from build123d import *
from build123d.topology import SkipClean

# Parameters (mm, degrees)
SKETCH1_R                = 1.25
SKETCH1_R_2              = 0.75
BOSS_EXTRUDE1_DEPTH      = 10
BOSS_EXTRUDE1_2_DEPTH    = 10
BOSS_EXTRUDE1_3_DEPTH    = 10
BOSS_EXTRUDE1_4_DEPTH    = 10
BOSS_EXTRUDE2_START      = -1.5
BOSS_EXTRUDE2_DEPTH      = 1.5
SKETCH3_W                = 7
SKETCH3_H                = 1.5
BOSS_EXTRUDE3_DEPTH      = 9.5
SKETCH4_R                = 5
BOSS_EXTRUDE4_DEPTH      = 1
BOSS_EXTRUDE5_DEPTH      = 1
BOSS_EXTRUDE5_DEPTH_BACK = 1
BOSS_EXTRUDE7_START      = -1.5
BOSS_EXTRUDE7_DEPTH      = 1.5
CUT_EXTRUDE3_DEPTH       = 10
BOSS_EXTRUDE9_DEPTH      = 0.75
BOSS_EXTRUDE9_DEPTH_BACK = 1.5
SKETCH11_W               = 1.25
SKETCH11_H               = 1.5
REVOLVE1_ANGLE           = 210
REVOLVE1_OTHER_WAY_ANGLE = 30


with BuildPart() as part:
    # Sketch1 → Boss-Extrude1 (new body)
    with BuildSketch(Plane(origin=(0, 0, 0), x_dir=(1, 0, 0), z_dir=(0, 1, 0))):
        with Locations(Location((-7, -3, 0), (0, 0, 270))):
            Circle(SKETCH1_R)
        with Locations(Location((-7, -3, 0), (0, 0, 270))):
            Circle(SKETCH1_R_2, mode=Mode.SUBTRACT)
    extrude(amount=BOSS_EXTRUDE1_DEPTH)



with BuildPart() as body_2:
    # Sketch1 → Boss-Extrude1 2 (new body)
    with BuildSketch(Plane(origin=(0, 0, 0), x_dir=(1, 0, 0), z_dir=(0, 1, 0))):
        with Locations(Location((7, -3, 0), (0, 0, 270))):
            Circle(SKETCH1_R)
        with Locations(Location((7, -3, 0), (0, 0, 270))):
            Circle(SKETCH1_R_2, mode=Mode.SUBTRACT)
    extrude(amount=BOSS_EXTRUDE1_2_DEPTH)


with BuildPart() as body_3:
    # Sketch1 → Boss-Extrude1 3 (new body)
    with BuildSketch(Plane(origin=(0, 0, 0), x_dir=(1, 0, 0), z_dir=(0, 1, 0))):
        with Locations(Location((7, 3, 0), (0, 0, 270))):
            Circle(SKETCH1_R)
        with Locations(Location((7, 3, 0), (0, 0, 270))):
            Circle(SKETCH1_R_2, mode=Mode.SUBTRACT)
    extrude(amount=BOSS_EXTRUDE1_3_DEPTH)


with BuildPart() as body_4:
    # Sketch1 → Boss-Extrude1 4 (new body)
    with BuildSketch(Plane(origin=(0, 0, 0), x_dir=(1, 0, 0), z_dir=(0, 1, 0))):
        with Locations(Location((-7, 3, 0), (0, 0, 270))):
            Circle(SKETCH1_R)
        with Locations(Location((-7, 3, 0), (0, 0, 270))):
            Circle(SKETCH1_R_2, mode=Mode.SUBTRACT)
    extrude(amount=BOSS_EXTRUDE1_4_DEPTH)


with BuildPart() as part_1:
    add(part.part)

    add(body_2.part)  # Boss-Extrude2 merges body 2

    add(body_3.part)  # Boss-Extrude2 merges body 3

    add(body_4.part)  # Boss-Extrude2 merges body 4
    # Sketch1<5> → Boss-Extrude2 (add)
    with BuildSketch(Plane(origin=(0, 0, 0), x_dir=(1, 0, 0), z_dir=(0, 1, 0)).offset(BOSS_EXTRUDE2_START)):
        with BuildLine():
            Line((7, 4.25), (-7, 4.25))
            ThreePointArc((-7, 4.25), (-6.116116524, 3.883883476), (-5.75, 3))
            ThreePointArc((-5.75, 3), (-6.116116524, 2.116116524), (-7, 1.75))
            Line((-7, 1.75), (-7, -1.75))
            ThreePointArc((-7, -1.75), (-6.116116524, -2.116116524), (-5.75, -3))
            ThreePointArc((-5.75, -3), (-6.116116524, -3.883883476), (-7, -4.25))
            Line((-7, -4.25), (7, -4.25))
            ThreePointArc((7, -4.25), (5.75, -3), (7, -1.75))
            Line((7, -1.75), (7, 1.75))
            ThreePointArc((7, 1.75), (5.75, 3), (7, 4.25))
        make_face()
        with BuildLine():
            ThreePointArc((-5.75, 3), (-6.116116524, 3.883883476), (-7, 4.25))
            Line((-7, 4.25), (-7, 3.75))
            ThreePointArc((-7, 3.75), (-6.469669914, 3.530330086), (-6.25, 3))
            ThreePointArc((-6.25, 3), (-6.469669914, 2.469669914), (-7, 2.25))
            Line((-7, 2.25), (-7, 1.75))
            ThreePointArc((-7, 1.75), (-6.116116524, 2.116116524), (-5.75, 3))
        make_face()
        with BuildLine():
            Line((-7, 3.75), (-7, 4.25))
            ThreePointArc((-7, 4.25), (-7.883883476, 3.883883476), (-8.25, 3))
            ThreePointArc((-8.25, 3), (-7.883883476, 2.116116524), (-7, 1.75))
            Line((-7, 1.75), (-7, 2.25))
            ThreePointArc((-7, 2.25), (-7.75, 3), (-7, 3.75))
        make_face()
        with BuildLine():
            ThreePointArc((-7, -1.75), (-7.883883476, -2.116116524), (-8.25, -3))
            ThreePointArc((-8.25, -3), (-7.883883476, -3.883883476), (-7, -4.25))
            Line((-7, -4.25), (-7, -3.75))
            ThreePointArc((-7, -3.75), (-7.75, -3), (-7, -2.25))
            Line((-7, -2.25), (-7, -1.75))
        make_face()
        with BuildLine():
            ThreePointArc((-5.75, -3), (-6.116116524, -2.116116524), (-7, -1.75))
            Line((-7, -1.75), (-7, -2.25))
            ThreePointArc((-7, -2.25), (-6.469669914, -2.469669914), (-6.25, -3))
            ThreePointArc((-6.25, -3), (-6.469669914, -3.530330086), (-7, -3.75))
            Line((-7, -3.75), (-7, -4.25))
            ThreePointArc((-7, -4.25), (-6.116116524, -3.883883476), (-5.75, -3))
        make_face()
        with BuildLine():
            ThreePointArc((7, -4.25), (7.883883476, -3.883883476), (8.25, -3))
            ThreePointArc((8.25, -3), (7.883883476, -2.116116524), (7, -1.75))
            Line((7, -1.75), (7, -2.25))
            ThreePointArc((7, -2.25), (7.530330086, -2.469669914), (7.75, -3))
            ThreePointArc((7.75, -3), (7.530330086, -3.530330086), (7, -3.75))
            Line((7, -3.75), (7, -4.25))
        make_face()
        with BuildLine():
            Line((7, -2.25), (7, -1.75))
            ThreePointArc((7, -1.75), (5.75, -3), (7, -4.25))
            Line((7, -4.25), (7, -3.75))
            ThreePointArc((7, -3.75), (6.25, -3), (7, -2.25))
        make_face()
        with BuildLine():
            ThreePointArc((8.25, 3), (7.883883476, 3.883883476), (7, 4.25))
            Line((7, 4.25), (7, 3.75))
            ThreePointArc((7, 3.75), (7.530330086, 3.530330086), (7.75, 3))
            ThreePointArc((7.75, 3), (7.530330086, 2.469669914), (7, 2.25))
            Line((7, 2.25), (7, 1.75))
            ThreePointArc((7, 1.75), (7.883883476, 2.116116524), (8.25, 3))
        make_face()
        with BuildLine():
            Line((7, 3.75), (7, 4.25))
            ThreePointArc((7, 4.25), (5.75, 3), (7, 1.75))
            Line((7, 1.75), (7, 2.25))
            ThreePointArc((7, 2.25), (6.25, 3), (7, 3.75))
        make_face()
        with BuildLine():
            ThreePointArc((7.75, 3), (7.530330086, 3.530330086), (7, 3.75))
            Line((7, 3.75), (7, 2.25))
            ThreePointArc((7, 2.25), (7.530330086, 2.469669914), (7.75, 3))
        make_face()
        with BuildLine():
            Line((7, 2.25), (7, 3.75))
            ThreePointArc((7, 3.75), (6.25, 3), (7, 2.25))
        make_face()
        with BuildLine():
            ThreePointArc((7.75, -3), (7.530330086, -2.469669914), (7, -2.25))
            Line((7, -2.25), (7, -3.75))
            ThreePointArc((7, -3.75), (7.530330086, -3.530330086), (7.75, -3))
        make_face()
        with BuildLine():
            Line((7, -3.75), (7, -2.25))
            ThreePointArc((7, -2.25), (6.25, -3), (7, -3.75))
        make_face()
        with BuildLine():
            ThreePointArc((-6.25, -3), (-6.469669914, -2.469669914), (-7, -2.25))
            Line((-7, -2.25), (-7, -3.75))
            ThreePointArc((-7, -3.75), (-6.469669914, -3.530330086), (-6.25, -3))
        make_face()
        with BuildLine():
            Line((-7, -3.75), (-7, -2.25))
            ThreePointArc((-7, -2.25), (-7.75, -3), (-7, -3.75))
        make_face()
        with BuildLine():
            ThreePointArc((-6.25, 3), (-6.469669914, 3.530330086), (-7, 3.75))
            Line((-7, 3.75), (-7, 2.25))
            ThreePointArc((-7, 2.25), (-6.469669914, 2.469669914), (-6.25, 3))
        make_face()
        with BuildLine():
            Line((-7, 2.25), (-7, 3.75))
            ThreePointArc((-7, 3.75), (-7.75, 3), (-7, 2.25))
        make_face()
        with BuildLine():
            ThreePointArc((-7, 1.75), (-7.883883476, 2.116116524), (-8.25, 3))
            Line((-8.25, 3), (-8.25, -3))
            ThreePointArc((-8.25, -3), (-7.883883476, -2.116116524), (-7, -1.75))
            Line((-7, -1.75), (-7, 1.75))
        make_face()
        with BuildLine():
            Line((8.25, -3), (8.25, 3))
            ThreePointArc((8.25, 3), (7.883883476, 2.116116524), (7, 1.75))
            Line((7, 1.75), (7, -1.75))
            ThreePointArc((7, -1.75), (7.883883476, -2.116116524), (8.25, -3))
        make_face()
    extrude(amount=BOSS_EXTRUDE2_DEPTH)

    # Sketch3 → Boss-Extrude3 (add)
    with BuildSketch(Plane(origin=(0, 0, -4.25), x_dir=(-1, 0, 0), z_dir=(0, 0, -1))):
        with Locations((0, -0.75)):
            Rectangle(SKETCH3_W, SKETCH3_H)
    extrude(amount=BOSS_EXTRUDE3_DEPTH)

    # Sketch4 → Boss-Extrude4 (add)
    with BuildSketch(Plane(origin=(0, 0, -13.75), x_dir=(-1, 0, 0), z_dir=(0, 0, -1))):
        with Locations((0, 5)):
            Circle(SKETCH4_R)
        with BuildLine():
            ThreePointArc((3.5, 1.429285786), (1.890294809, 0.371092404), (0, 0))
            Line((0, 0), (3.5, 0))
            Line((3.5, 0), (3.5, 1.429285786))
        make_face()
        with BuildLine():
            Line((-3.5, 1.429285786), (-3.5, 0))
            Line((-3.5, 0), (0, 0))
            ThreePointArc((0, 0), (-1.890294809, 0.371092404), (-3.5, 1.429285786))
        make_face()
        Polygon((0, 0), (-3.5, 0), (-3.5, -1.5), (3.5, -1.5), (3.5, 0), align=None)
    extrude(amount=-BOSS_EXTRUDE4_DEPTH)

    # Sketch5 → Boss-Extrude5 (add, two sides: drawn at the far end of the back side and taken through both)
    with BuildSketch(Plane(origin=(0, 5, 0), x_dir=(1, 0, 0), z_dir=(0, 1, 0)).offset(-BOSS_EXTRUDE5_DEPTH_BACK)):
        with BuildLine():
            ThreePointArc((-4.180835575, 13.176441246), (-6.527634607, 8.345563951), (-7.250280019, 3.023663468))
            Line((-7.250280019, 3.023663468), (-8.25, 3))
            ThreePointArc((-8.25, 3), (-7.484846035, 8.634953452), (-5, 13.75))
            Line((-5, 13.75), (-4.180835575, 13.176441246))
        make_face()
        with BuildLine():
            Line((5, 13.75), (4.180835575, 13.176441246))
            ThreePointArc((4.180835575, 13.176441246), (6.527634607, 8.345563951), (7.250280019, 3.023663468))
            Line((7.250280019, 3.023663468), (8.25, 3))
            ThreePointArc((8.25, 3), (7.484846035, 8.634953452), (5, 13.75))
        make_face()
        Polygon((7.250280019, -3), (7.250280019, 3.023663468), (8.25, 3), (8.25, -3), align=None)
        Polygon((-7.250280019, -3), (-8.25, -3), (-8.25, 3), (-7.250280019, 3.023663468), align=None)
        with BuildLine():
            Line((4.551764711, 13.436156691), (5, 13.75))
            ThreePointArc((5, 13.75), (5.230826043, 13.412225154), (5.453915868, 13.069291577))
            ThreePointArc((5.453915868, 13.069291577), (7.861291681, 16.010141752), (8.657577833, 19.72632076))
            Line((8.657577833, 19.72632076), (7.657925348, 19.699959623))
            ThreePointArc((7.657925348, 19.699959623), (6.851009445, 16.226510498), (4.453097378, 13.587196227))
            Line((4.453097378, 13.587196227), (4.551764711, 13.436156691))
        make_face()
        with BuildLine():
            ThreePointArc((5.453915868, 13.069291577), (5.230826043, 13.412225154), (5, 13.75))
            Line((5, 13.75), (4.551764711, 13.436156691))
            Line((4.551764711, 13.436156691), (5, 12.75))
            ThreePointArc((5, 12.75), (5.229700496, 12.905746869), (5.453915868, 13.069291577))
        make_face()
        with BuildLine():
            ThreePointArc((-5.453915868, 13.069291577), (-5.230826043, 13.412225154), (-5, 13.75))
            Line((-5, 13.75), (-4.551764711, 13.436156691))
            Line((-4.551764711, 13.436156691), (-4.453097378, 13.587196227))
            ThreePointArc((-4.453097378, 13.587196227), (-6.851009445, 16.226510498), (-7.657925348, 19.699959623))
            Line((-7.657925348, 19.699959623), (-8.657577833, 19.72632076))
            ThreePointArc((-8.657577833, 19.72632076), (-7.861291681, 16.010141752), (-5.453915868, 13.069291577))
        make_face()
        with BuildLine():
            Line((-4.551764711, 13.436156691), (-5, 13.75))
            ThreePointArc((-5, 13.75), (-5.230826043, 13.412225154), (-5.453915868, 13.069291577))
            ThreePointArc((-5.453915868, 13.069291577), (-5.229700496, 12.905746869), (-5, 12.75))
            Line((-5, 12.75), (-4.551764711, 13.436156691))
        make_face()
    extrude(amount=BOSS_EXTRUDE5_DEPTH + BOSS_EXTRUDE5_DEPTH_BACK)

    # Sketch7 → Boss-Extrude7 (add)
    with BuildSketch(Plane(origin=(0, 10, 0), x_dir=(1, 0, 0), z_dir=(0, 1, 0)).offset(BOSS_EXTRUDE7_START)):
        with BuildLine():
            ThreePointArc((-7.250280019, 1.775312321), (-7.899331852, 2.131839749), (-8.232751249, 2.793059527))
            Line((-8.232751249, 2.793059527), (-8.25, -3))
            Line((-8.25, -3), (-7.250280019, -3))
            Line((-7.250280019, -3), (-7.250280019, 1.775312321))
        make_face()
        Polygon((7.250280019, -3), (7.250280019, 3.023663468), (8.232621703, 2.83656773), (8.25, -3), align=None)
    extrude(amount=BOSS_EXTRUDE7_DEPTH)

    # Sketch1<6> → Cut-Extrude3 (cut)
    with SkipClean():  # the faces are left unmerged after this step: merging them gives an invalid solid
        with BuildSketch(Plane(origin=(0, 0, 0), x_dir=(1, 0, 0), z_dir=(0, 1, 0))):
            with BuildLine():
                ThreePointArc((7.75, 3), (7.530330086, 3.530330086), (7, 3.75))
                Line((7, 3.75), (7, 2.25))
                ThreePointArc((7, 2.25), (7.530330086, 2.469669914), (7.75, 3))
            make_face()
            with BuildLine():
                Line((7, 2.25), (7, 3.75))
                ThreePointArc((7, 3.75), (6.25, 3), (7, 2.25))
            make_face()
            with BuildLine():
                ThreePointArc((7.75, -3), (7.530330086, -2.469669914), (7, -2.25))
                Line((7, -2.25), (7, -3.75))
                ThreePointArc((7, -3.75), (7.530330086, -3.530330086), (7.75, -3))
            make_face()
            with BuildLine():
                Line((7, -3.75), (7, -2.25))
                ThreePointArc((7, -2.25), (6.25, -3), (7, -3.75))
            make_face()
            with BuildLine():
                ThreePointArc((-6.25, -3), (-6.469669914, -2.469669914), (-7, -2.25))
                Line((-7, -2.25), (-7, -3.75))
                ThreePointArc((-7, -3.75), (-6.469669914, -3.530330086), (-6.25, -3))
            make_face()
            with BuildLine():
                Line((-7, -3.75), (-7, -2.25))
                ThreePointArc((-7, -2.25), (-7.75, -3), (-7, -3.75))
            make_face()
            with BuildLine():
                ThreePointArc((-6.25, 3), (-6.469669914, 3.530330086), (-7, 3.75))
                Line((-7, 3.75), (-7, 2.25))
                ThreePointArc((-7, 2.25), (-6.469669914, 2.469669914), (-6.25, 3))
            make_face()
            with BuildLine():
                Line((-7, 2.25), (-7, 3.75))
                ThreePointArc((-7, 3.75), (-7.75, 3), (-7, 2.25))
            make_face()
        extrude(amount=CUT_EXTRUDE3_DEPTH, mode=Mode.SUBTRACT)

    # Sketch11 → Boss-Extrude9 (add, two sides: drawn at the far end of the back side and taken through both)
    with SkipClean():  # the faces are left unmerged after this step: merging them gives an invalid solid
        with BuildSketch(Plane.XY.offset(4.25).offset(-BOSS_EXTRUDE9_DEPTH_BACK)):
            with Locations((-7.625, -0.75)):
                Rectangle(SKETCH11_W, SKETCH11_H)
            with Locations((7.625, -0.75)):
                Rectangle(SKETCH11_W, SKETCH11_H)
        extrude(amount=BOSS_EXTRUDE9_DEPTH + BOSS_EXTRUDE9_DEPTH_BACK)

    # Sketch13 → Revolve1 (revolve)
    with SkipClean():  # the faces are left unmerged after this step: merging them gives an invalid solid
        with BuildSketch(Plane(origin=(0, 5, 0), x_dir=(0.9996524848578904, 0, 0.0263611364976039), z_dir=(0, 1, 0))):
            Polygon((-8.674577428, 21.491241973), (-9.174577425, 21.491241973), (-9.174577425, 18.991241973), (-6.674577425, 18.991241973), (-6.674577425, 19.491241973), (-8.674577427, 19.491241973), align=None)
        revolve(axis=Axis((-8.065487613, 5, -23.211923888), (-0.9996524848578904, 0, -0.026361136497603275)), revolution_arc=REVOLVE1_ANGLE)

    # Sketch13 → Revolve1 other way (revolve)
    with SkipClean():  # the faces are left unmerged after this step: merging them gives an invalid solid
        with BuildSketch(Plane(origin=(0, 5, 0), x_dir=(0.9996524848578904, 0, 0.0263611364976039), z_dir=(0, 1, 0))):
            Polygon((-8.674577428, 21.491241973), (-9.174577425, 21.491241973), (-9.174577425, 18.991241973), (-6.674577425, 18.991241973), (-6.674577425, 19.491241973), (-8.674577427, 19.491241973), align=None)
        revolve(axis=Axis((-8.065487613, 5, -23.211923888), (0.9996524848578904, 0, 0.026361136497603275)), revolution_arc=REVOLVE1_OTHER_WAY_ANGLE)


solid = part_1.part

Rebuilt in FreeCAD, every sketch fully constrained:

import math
import FreeCAD as App
import Part
import Sketcher

doc = App.newDocument("Part")
body = doc.addObject("PartDesign::Body", "Body")

sketch1 = body.newObject("Sketcher::SketchObject", "Sketch")
sketch1.AttachmentSupport = (doc.getObject("XZ_Plane"), [""])
sketch1.MapMode = "FlatFace"
sketch1.addGeometry([
    Part.Circle(App.Vector(-7, 3, 0), App.Vector(0, 0, 1), 1.25),
    Part.Circle(App.Vector(-7, 3, 0), App.Vector(0, 0, 1), 0.75),
], False)
sketch1.addConstraint([
    Sketcher.Constraint("Coincident", 1, 3, 0, 3),
    Sketcher.Constraint("Diameter", 0, 2.5),
    Sketcher.Constraint("Diameter", 1, 1.5),
    Sketcher.Constraint("DistanceX", 0, 3, -1, 1, 7.0),
    Sketcher.Constraint("DistanceY", -1, 1, 0, 3, 3.0),
])
pad1 = body.newObject("PartDesign::Pad", "Pad")
pad1.Profile = sketch1
pad1.Length = 10
pad1.Reversed = True
body2 = doc.addObject("PartDesign::Body", "Body001")

sketch2 = body2.newObject("Sketcher::SketchObject", "Sketch001")
sketch2.AttachmentSupport = (doc.getObject("XZ_Plane001"), [""])
sketch2.MapMode = "FlatFace"
sketch2.addGeometry([
    Part.Circle(App.Vector(7, 3, 0), App.Vector(0, 0, 1), 1.25),
    Part.Circle(App.Vector(7, 3, 0), App.Vector(0, 0, 1), 0.75),
], False)
sketch2.addConstraint([
    Sketcher.Constraint("Coincident", 1, 3, 0, 3),
    Sketcher.Constraint("Diameter", 0, 2.5),
    Sketcher.Constraint("Diameter", 1, 1.5),
    Sketcher.Constraint("DistanceX", -1, 1, 0, 3, 7.0),
    Sketcher.Constraint("DistanceY", -1, 1, 0, 3, 3.0),
])
pad2 = body2.newObject("PartDesign::Pad", "Pad001")
pad2.Profile = sketch2
pad2.Length = 10
pad2.Reversed = True
body3 = doc.addObject("PartDesign::Body", "Body002")

sketch3 = body3.newObject("Sketcher::SketchObject", "Sketch002")
sketch3.AttachmentSupport = (doc.getObject("XZ_Plane002"), [""])
sketch3.MapMode = "FlatFace"
sketch3.addGeometry([
    Part.Circle(App.Vector(7, -3, 0), App.Vector(0, 0, 1), 1.25),
    Part.Circle(App.Vector(7, -3, 0), App.Vector(0, 0, 1), 0.75),
], False)
sketch3.addConstraint([
    Sketcher.Constraint("Coincident", 1, 3, 0, 3),
    Sketcher.Constraint("Diameter", 0, 2.5),
    Sketcher.Constraint("Diameter", 1, 1.5),
    Sketcher.Constraint("DistanceX", -1, 1, 0, 3, 7.0),
    Sketcher.Constraint("DistanceY", 0, 3, -1, 1, 3.0),
])
pad3 = body3.newObject("PartDesign::Pad", "Pad002")
pad3.Profile = sketch3
pad3.Length = 10
pad3.Reversed = True
body4 = doc.addObject("PartDesign::Body", "Body003")

sketch4 = body4.newObject("Sketcher::SketchObject", "Sketch003")
sketch4.AttachmentSupport = (doc.getObject("XZ_Plane003"), [""])
sketch4.MapMode = "FlatFace"
sketch4.addGeometry([
    Part.Circle(App.Vector(-7, -3, 0), App.Vector(0, 0, 1), 1.25),
    Part.Circle(App.Vector(-7, -3, 0), App.Vector(0, 0, 1), 0.75),
], False)
sketch4.addConstraint([
    Sketcher.Constraint("Coincident", 1, 3, 0, 3),
    Sketcher.Constraint("Diameter", 0, 2.5),
    Sketcher.Constraint("Diameter", 1, 1.5),
    Sketcher.Constraint("DistanceX", 0, 3, -1, 1, 7.0),
    Sketcher.Constraint("DistanceY", 0, 3, -1, 1, 3.0),
])
pad4 = body4.newObject("PartDesign::Pad", "Pad003")
pad4.Profile = sketch4
pad4.Length = 10
pad4.Reversed = True
body.AllowCompound = True
doc.recompute()

boolean = body.newObject("PartDesign::Boolean", "Boolean")
boolean.Type = "Fuse"
boolean.addObjects([body2])
doc.recompute()

boolean2 = body.newObject("PartDesign::Boolean", "Boolean001")
boolean2.Type = "Fuse"
boolean2.addObjects([body3])
doc.recompute()

boolean3 = body.newObject("PartDesign::Boolean", "Boolean002")
boolean3.Type = "Fuse"
boolean3.addObjects([body4])

sketch5 = body.newObject("Sketcher::SketchObject", "Sketch004")
sketch5.AttachmentSupport = (doc.getObject("XZ_Plane"), [""])
sketch5.MapMode = "FlatFace"
sketch5.AttachmentOffset = App.Placement(App.Vector(0, 0, 1.5), App.Rotation())
sketch5.addGeometry([
    Part.ArcOfCircle(Part.Circle(App.Vector(-7, 3, 0), App.Vector(0, 0, 1), 1.25), math.radians(90), math.radians(180)),
    Part.LineSegment(App.Vector(-7, 4.25, 0), App.Vector(7, 4.25, 0)),
    Part.ArcOfCircle(Part.Circle(App.Vector(7, 3, 0), App.Vector(0, 0, 1), 1.25), math.radians(0), math.radians(90)),
    Part.LineSegment(App.Vector(8.25, 3, 0), App.Vector(8.25, -3, 0)),
    Part.ArcOfCircle(Part.Circle(App.Vector(7, -3, 0), App.Vector(0, 0, 1), 1.25), math.radians(-90), math.radians(0)),
    Part.LineSegment(App.Vector(7, -4.25, 0), App.Vector(-7, -4.25, 0)),
    Part.ArcOfCircle(Part.Circle(App.Vector(-7, -3, 0), App.Vector(0, 0, 1), 1.25), math.radians(-180), math.radians(-90)),
    Part.LineSegment(App.Vector(-8.25, -3, 0), App.Vector(-8.25, 3, 0)),
], False)
sketch5.addConstraint([
    Sketcher.Constraint("Tangent", 0, 1, 1, 1),
    Sketcher.Constraint("Tangent", 1, 2, 2, 2),
    Sketcher.Constraint("Tangent", 2, 1, 3, 1),
    Sketcher.Constraint("Tangent", 3, 2, 4, 2),
    Sketcher.Constraint("Tangent", 4, 1, 5, 1),
    Sketcher.Constraint("Tangent", 5, 2, 6, 2),
    Sketcher.Constraint("Tangent", 6, 1, 7, 1),
    Sketcher.Constraint("Tangent", 7, 2, 0, 2),
    Sketcher.Constraint("Horizontal", 1),
    Sketcher.Constraint("Vertical", 3),
    Sketcher.Constraint("Horizontal", 5),
    Sketcher.Constraint("Vertical", 7),
    Sketcher.Constraint("Equal", 0, 2),
    Sketcher.Constraint("Equal", 2, 4),
    Sketcher.Constraint("Equal", 4, 6),
    Sketcher.Constraint("Symmetric", 0, 3, 4, 3, -1, 1),
    Sketcher.Constraint("DistanceX", 1, 1, 1, 2, 14.0),
    Sketcher.Constraint("DistanceY", 3, 2, 3, 1, 6.0),
    Sketcher.Constraint("Radius", 0, 1.25),
])
pad5 = body.newObject("PartDesign::Pad", "Pad004")
pad5.Profile = sketch5
pad5.Length = 1.5
pad5.Reversed = True

sketch6 = body.newObject("Sketcher::SketchObject", "Sketch005")
sketch6.AttachmentSupport = (doc.getObject("XY_Plane"), [""])
sketch6.MapMode = "FlatFace"
sketch6.AttachmentOffset = App.Placement(App.Vector(0, 0, -4.25), App.Rotation())
sketch6.addGeometry([
    Part.LineSegment(App.Vector(3.5, 0, 0), App.Vector(3.5, -1.5, 0)),
    Part.LineSegment(App.Vector(3.5, -1.5, 0), App.Vector(-3.5, -1.5, 0)),
    Part.LineSegment(App.Vector(-3.5, -1.5, 0), App.Vector(-3.5, 0, 0)),
    Part.LineSegment(App.Vector(-3.5, 0, 0), App.Vector(3.5, 0, 0)),
], False)
sketch6.addConstraint([
    Sketcher.Constraint("Coincident", 0, 2, 1, 1),
    Sketcher.Constraint("Coincident", 1, 2, 2, 1),
    Sketcher.Constraint("Coincident", 2, 2, 3, 1),
    Sketcher.Constraint("Coincident", 3, 2, 0, 1),
    Sketcher.Constraint("Vertical", 0),
    Sketcher.Constraint("Horizontal", 1),
    Sketcher.Constraint("Vertical", 2),
    Sketcher.Constraint("Horizontal", 3),
    Sketcher.Constraint("Symmetric", 2, 2, 3, 2, -1, 1),
    Sketcher.Constraint("DistanceX", 1, 2, 1, 1, 7.0),
    Sketcher.Constraint("DistanceY", 0, 2, 0, 1, 1.5),
])
pad6 = body.newObject("PartDesign::Pad", "Pad005")
pad6.Profile = sketch6
pad6.Length = 9.5
pad6.Reversed = True

sketch7 = body.newObject("Sketcher::SketchObject", "Sketch006")
sketch7.AttachmentSupport = (doc.getObject("XY_Plane"), [""])
sketch7.MapMode = "FlatFace"
sketch7.AttachmentOffset = App.Placement(App.Vector(0, 0, -13.75), App.Rotation())
sketch7.addGeometry([
    Part.ArcOfCircle(Part.Circle(App.Vector(0, 5, 0), App.Vector(0, 0, 1), 5), math.radians(-45.572996), math.radians(225.572996)),
    Part.LineSegment(App.Vector(3.5, 1.429286, 0), App.Vector(3.5, -1.5, 0)),
    Part.LineSegment(App.Vector(3.5, -1.5, 0), App.Vector(-3.5, -1.5, 0)),
    Part.LineSegment(App.Vector(-3.5, -1.5, 0), App.Vector(-3.5, 1.429286, 0)),
], False)
sketch7.addConstraint([
    Sketcher.Constraint("Coincident", 0, 1, 1, 1),
    Sketcher.Constraint("Coincident", 1, 2, 2, 1),
    Sketcher.Constraint("Coincident", 2, 2, 3, 1),
    Sketcher.Constraint("Coincident", 3, 2, 0, 2),
    Sketcher.Constraint("Vertical", 1),
    Sketcher.Constraint("Horizontal", 2),
    Sketcher.Constraint("Vertical", 3),
    Sketcher.Constraint("Symmetric", 0, 1, 3, 2, -2),
    Sketcher.Constraint("Radius", 0, 5.0),
    Sketcher.Constraint("DistanceX", 2, 2, 2, 1, 7.0),
    Sketcher.Constraint("DistanceY", -1, 1, 0, 3, 5.0),
    Sketcher.Constraint("DistanceY", 1, 2, -1, 1, 1.5),
])
pad7 = body.newObject("PartDesign::Pad", "Pad006")
pad7.Profile = sketch7
pad7.Length = 1

sketch8 = body.newObject("Sketcher::SketchObject", "Sketch007")
sketch8.AttachmentSupport = (doc.getObject("XZ_Plane"), [""])
sketch8.MapMode = "FlatFace"
sketch8.AttachmentOffset = App.Placement(App.Vector(0, 0, -5), App.Rotation())
sketch8.addGeometry([
    Part.LineSegment(App.Vector(-4.180836, -13.176441, 0), App.Vector(-4.551765, -13.436157, 0)),
    Part.LineSegment(App.Vector(-4.551765, -13.436157, 0), App.Vector(-4.453097, -13.587196, 0)),
    Part.ArcOfCircle(Part.Circle(App.Vector(-0.581801, -19.51336, 0), App.Vector(0, 0, 1), 7.078584), math.radians(123.154778), math.radians(181.510557)),
    Part.LineSegment(App.Vector(-7.657925, -19.69996, 0), App.Vector(-8.657578, -19.726321, 0)),
    Part.ArcOfCircle(Part.Circle(App.Vector(-0.581801, -19.51336, 0), App.Vector(0, 0, 1), 8.078584), math.radians(127.091537), math.radians(181.510557)),
    Part.ArcOfCircle(Part.Circle(App.Vector(9.74496, -3.425942, 0), App.Vector(0, 0, 1), 18), math.radians(178.644057), math.radians(212.39422)),
    Part.LineSegment(App.Vector(-8.25, -3, 0), App.Vector(-8.25, 3, 0)),
    Part.LineSegment(App.Vector(-8.25, 3, 0), App.Vector(-7.25028, 3, 0)),
    Part.LineSegment(App.Vector(-7.25028, 3, 0), App.Vector(-7.25028, -3.023663, 0)),
    Part.ArcOfCircle(Part.Circle(App.Vector(9.74496, -3.425942, 0), App.Vector(0, 0, 1), 17), math.radians(178.644057), math.radians(214.998763)),
    Part.ArcOfCircle(Part.Circle(App.Vector(-9.74496, -3.425942, 0), App.Vector(0, 0, 1), 18), math.radians(-32.39422), math.radians(1.355943)),
    Part.ArcOfCircle(Part.Circle(App.Vector(0.581801, -19.51336, 0), App.Vector(0, 0, 1), 8.078584), math.radians(-1.510557), math.radians(52.908463)),
    Part.LineSegment(App.Vector(8.657578, -19.726321, 0), App.Vector(7.657925, -19.69996, 0)),
    Part.ArcOfCircle(Part.Circle(App.Vector(0.581801, -19.51336, 0), App.Vector(0, 0, 1), 7.078584), math.radians(-1.510557), math.radians(56.845222)),
    Part.LineSegment(App.Vector(4.453097, -13.587196, 0), App.Vector(4.551765, -13.436157, 0)),
    Part.LineSegment(App.Vector(4.551765, -13.436157, 0), App.Vector(4.180836, -13.176441, 0)),
    Part.ArcOfCircle(Part.Circle(App.Vector(-9.74496, -3.425942, 0), App.Vector(0, 0, 1), 17), math.radians(-34.998763), math.radians(1.355943)),
    Part.LineSegment(App.Vector(7.25028, -3.023663, 0), App.Vector(7.25028, 3, 0)),
    Part.LineSegment(App.Vector(7.25028, 3, 0), App.Vector(8.25, 3, 0)),
    Part.LineSegment(App.Vector(8.25, 3, 0), App.Vector(8.25, -3, 0)),
], False)
sketch8.addConstraint([
    Sketcher.Constraint("Coincident", 0, 2, 1, 1),
    Sketcher.Constraint("Coincident", 1, 2, 2, 1),
    Sketcher.Constraint("Coincident", 2, 2, 3, 1),
    Sketcher.Constraint("Coincident", 3, 2, 4, 2),
    Sketcher.Constraint("Coincident", 4, 1, 5, 2),
    Sketcher.Constraint("Coincident", 5, 1, 6, 1),
    Sketcher.Constraint("Coincident", 6, 2, 7, 1),
    Sketcher.Constraint("Coincident", 7, 2, 8, 1),
    Sketcher.Constraint("Coincident", 8, 2, 9, 1),
    Sketcher.Constraint("Coincident", 9, 2, 0, 1),
    Sketcher.Constraint("Coincident", 10, 1, 11, 2),
    Sketcher.Constraint("Coincident", 11, 1, 12, 1),
    Sketcher.Constraint("Coincident", 12, 2, 13, 1),
    Sketcher.Constraint("Coincident", 13, 2, 14, 1),
    Sketcher.Constraint("Coincident", 14, 2, 15, 1),
    Sketcher.Constraint("Coincident", 15, 2, 16, 1),
    Sketcher.Constraint("Coincident", 16, 2, 17, 1),
    Sketcher.Constraint("Coincident", 17, 2, 18, 1),
    Sketcher.Constraint("Coincident", 18, 2, 19, 1),
    Sketcher.Constraint("Coincident", 19, 2, 10, 2),
    Sketcher.Constraint("Vertical", 6),
    Sketcher.Constraint("Horizontal", 7),
    Sketcher.Constraint("Vertical", 8),
    Sketcher.Constraint("Vertical", 17),
    Sketcher.Constraint("Horizontal", 18),
    Sketcher.Constraint("Vertical", 19),
    Sketcher.Constraint("Coincident", 4, 3, 2, 3),
    Sketcher.Constraint("Coincident", 9, 3, 5, 3),
    Sketcher.Constraint("Coincident", 13, 3, 11, 3),
    Sketcher.Constraint("Coincident", 16, 3, 10, 3),
    Sketcher.Constraint("Equal", 5, 10),
    Sketcher.Constraint("Equal", 4, 11),
    Sketcher.Constraint("Equal", 2, 13),
    Sketcher.Constraint("Equal", 9, 16),
    Sketcher.Constraint("Symmetric", 5, 1, 18, 2, -1, 1),
    Sketcher.Constraint("Symmetric", 5, 3, 10, 3, -2),
    Sketcher.Constraint("Symmetric", 2, 3, 11, 3, -2),
    Sketcher.Constraint("Symmetric", 0, 2, 14, 2, -2),
    Sketcher.Constraint("Symmetric", 7, 2, 17, 2, -2),
    Sketcher.Constraint("Horizontal", 3, 2, 11, 1),
    Sketcher.Constraint("Horizontal", 2, 2, 12, 2),
    Sketcher.Constraint("Horizontal", 1, 2, 13, 2),
    Sketcher.Constraint("Horizontal", 9, 2, 15, 2),
    Sketcher.Constraint("Radius", 5, 18.0),
    Sketcher.Constraint("Radius", 9, 17.0),
    Sketcher.Constraint("DistanceY", 6, 1, 6, 2, 6.0),
    Sketcher.Constraint("Distance", 3, 1.0),
    Sketcher.Constraint("DistanceX", 5, 1, -1, 1, 8.25),
    Sketcher.Constraint("Radius", 2, 7.078584),
    Sketcher.Constraint("DistanceX", 7, 1, 7, 2, 0.99972),
    Sketcher.Constraint("DistanceX", 2, 3, -1, 1, 0.581801),
    Sketcher.Constraint("DistanceX", 1, 2, 13, 3, 5.034899),
    Sketcher.Constraint("DistanceY", 2, 2, 4, 3, 0.1866),
    Sketcher.Constraint("Distance", 1, 0.180411),
    Sketcher.Constraint("DistanceY", 2, 3, -1, 1, 19.51336),
    Sketcher.Constraint("DistanceX", -1, 1, 5, 3, 9.74496),
    Sketcher.Constraint("DistanceY", 3, 2, -1, 1, 19.726321),
    Sketcher.Constraint("DistanceY", 9, 2, -1, 1, 13.176441),
    Sketcher.Constraint("DistanceY", 1, 2, 0, 2, 0.15104),
])
pad8 = body.newObject("PartDesign::Pad", "Pad007")
pad8.Profile = sketch8
pad8.Type = "TwoLengths"
pad8.Length = 1
pad8.Length2 = 1
pad8.Reversed = True

sketch9 = body.newObject("Sketcher::SketchObject", "Sketch008")
sketch9.AttachmentSupport = (doc.getObject("XZ_Plane"), [""])
sketch9.MapMode = "FlatFace"
sketch9.AttachmentOffset = App.Placement(App.Vector(0, 0, -8.5), App.Rotation())
sketch9.addGeometry([
    Part.ArcOfCircle(Part.Circle(App.Vector(-7, -3, 0), App.Vector(0, 0, 1), 1.25), math.radians(101.550059), math.radians(170.470675)),
    Part.LineSegment(App.Vector(-8.232751, -2.79306, 0), App.Vector(-8.25, 3, 0)),
    Part.LineSegment(App.Vector(-8.25, 3, 0), App.Vector(-7.25028, 3, 0)),
    Part.LineSegment(App.Vector(-7.25028, 3, 0), App.Vector(-7.25028, -1.775312, 0)),
    Part.LineSegment(App.Vector(7.25028, -3.023663, 0), App.Vector(7.25028, 3, 0)),
    Part.LineSegment(App.Vector(7.25028, 3, 0), App.Vector(8.25, 3, 0)),
    Part.LineSegment(App.Vector(8.25, 3, 0), App.Vector(8.232622, -2.836568, 0)),
    Part.LineSegment(App.Vector(8.232622, -2.836568, 0), App.Vector(7.25028, -3.023663, 0)),
], False)
sketch9.addConstraint([
    Sketcher.Constraint("Coincident", 0, 2, 1, 1),
    Sketcher.Constraint("Coincident", 1, 2, 2, 1),
    Sketcher.Constraint("Coincident", 2, 2, 3, 1),
    Sketcher.Constraint("Coincident", 3, 2, 0, 1),
    Sketcher.Constraint("Coincident", 4, 2, 5, 1),
    Sketcher.Constraint("Coincident", 5, 2, 6, 1),
    Sketcher.Constraint("Coincident", 6, 2, 7, 1),
    Sketcher.Constraint("Coincident", 7, 2, 4, 1),
    Sketcher.Constraint("Horizontal", 2),
    Sketcher.Constraint("Vertical", 3),
    Sketcher.Constraint("Vertical", 4),
    Sketcher.Constraint("Horizontal", 5),
    Sketcher.Constraint("Symmetric", 2, 2, 4, 2, -2),
    Sketcher.Constraint("Equal", 2, 5),
    Sketcher.Constraint("Radius", 0, 1.25),
    Sketcher.Constraint("Distance", 7, 1.0),
    Sketcher.Constraint("DistanceX", 0, 3, -1, 1, 7.0),
    Sketcher.Constraint("DistanceY", 0, 3, -1, 1, 3.0),
    Sketcher.Constraint("DistanceY", -1, 1, 1, 2, 3.0),
    Sketcher.Constraint("DistanceX", 1, 2, 5, 2, 16.5),
    Sketcher.Constraint("DistanceX", 2, 1, 2, 2, 0.99972),
    Sketcher.Constraint("DistanceX", 3, 2, 6, 2, 15.482902),
    Sketcher.Constraint("DistanceY", 4, 1, 4, 2, 6.023663),
    Sketcher.Constraint("DistanceX", 0, 2, -1, 1, 8.232751),
])
pad9 = body.newObject("PartDesign::Pad", "Pad008")
pad9.Profile = sketch9
pad9.Length = 1.5
pad9.Reversed = True

sketch10 = body.newObject("Sketcher::SketchObject", "Sketch009")
sketch10.AttachmentSupport = (doc.getObject("XZ_Plane"), [""])
sketch10.MapMode = "FlatFace"
sketch10.addGeometry([
    Part.ArcOfCircle(Part.Circle(App.Vector(7, -3, 0), App.Vector(0, 0, 1), 0.75), math.radians(-90), math.radians(0)),
    Part.LineSegment(App.Vector(7, -3.75, 0), App.Vector(7, -2.25, 0)),
    Part.ArcOfCircle(Part.Circle(App.Vector(7, -3, 0), App.Vector(0, 0, 1), 0.75), math.radians(0), math.radians(90)),
    Part.LineSegment(App.Vector(7, -2.25, 0), App.Vector(7, -3.75, 0)),
    Part.ArcOfCircle(Part.Circle(App.Vector(7, -3, 0), App.Vector(0, 0, 1), 0.75), math.radians(90), math.radians(270)),
    Part.ArcOfCircle(Part.Circle(App.Vector(7, 3, 0), App.Vector(0, 0, 1), 0.75), math.radians(-90), math.radians(0)),
    Part.LineSegment(App.Vector(7, 2.25, 0), App.Vector(7, 3.75, 0)),
    Part.ArcOfCircle(Part.Circle(App.Vector(7, 3, 0), App.Vector(0, 0, 1), 0.75), math.radians(0), math.radians(90)),
    Part.LineSegment(App.Vector(7, 3.75, 0), App.Vector(7, 2.25, 0)),
    Part.ArcOfCircle(Part.Circle(App.Vector(7, 3, 0), App.Vector(0, 0, 1), 0.75), math.radians(90), math.radians(270)),
    Part.ArcOfCircle(Part.Circle(App.Vector(-7, 3, 0), App.Vector(0, 0, 1), 0.75), math.radians(-90), math.radians(0)),
    Part.LineSegment(App.Vector(-7, 2.25, 0), App.Vector(-7, 3.75, 0)),
    Part.ArcOfCircle(Part.Circle(App.Vector(-7, 3, 0), App.Vector(0, 0, 1), 0.75), math.radians(0), math.radians(90)),
    Part.LineSegment(App.Vector(-7, 3.75, 0), App.Vector(-7, 2.25, 0)),
    Part.ArcOfCircle(Part.Circle(App.Vector(-7, 3, 0), App.Vector(0, 0, 1), 0.75), math.radians(90), math.radians(270)),
    Part.ArcOfCircle(Part.Circle(App.Vector(-7, -3, 0), App.Vector(0, 0, 1), 0.75), math.radians(-90), math.radians(0)),
    Part.LineSegment(App.Vector(-7, -3.75, 0), App.Vector(-7, -2.25, 0)),
    Part.ArcOfCircle(Part.Circle(App.Vector(-7, -3, 0), App.Vector(0, 0, 1), 0.75), math.radians(0), math.radians(90)),
    Part.LineSegment(App.Vector(-7, -2.25, 0), App.Vector(-7, -3.75, 0)),
    Part.ArcOfCircle(Part.Circle(App.Vector(-7, -3, 0), App.Vector(0, 0, 1), 0.75), math.radians(90), math.radians(270)),
], False)
sketch10.addConstraint([
    Sketcher.Constraint("Coincident", 0, 1, 1, 1),
    Sketcher.Constraint("Coincident", 1, 2, 2, 2),
    Sketcher.Constraint("Tangent", 2, 1, 0, 2),
    Sketcher.Constraint("Coincident", 3, 1, 4, 1),
    Sketcher.Constraint("Coincident", 4, 2, 3, 2),
    Sketcher.Constraint("Coincident", 5, 1, 6, 1),
    Sketcher.Constraint("Coincident", 6, 2, 7, 2),
    Sketcher.Constraint("Tangent", 7, 1, 5, 2),
    Sketcher.Constraint("Coincident", 8, 1, 9, 1),
    Sketcher.Constraint("Coincident", 9, 2, 8, 2),
    Sketcher.Constraint("Coincident", 10, 1, 11, 1),
    Sketcher.Constraint("Coincident", 11, 2, 12, 2),
    Sketcher.Constraint("Tangent", 12, 1, 10, 2),
    Sketcher.Constraint("Coincident", 13, 1, 14, 1),
    Sketcher.Constraint("Coincident", 14, 2, 13, 2),
    Sketcher.Constraint("Coincident", 15, 1, 16, 1),
    Sketcher.Constraint("Coincident", 16, 2, 17, 2),
    Sketcher.Constraint("Tangent", 17, 1, 15, 2),
    Sketcher.Constraint("Coincident", 18, 1, 19, 1),
    Sketcher.Constraint("Coincident", 19, 2, 18, 2),
    Sketcher.Constraint("Vertical", 1),
    Sketcher.Constraint("Vertical", 3),
    Sketcher.Constraint("Vertical", 6),
    Sketcher.Constraint("Vertical", 8),
    Sketcher.Constraint("Vertical", 11),
    Sketcher.Constraint("Vertical", 13),
    Sketcher.Constraint("Vertical", 16),
    Sketcher.Constraint("Vertical", 18),
    Sketcher.Constraint("Coincident", 4, 3, 0, 3),
    Sketcher.Constraint("Coincident", 9, 3, 5, 3),
    Sketcher.Constraint("Coincident", 14, 3, 10, 3),
    Sketcher.Constraint("Coincident", 19, 3, 15, 3),
    Sketcher.Constraint("Coincident", 3, 1, 1, 2),
    Sketcher.Constraint("Coincident", 8, 1, 6, 2),
    Sketcher.Constraint("Coincident", 13, 1, 11, 2),
    Sketcher.Constraint("Coincident", 18, 1, 16, 2),
    Sketcher.Constraint("Equal", 0, 2),
    Sketcher.Constraint("Equal", 4, 5),
    Sketcher.Constraint("Equal", 5, 7),
    Sketcher.Constraint("Equal", 9, 10),
    Sketcher.Constraint("Equal", 10, 12),
    Sketcher.Constraint("Equal", 14, 15),
    Sketcher.Constraint("Equal", 15, 17),
    Sketcher.Constraint("Symmetric", 0, 3, 10, 3, -1, 1),
    Sketcher.Constraint("Symmetric", 5, 3, 15, 3, -1, 1),
    Sketcher.Constraint("Symmetric", 5, 3, 10, 3, -2),
    Sketcher.Constraint("Horizontal", 19, 3, 2, 1),
    Sketcher.Constraint("Horizontal", 14, 3, 7, 1),
    Sketcher.Constraint("Horizontal", 7, 1, 12, 1),
    Sketcher.Constraint("Horizontal", 2, 1, 17, 1),
    Sketcher.Constraint("Vertical", 9, 3, 0, 1),
    Sketcher.Constraint("Vertical", 4, 2, 5, 1),
    Sketcher.Constraint("Vertical", 19, 3, 10, 1),
    Sketcher.Constraint("Vertical", 14, 2, 15, 1),
    Sketcher.Constraint("Radius", 0, 0.75),
    Sketcher.Constraint("DistanceX", -1, 1, 0, 3, 7.0),
    Sketcher.Constraint("DistanceY", 0, 3, -1, 1, 3.0),
])
pocket1 = body.newObject("PartDesign::Pocket", "Pocket")
pocket1.Profile = sketch10
pocket1.Length = 10

sketch11 = body.newObject("Sketcher::SketchObject", "Sketch010")
sketch11.AttachmentSupport = (doc.getObject("XY_Plane"), [""])
sketch11.MapMode = "FlatFace"
sketch11.AttachmentOffset = App.Placement(App.Vector(0, 0, 4.25), App.Rotation())
sketch11.addGeometry([
    Part.LineSegment(App.Vector(-8.25, 0, 0), App.Vector(-8.25, -1.5, 0)),
    Part.LineSegment(App.Vector(-8.25, -1.5, 0), App.Vector(-7, -1.5, 0)),
    Part.LineSegment(App.Vector(-7, -1.5, 0), App.Vector(-7, 0, 0)),
    Part.LineSegment(App.Vector(-7, 0, 0), App.Vector(-8.25, 0, 0)),
    Part.LineSegment(App.Vector(7, 0, 0), App.Vector(7, -1.5, 0)),
    Part.LineSegment(App.Vector(7, -1.5, 0), App.Vector(8.25, -1.5, 0)),
    Part.LineSegment(App.Vector(8.25, -1.5, 0), App.Vector(8.25, 0, 0)),
    Part.LineSegment(App.Vector(8.25, 0, 0), App.Vector(7, 0, 0)),
], False)
sketch11.addConstraint([
    Sketcher.Constraint("Coincident", 0, 2, 1, 1),
    Sketcher.Constraint("Coincident", 1, 2, 2, 1),
    Sketcher.Constraint("Coincident", 2, 2, 3, 1),
    Sketcher.Constraint("Coincident", 3, 2, 0, 1),
    Sketcher.Constraint("Coincident", 4, 2, 5, 1),
    Sketcher.Constraint("Coincident", 5, 2, 6, 1),
    Sketcher.Constraint("Coincident", 6, 2, 7, 1),
    Sketcher.Constraint("Coincident", 7, 2, 4, 1),
    Sketcher.Constraint("Vertical", 0),
    Sketcher.Constraint("Horizontal", 1),
    Sketcher.Constraint("Vertical", 2),
    Sketcher.Constraint("Horizontal", 3),
    Sketcher.Constraint("Vertical", 4),
    Sketcher.Constraint("Horizontal", 5),
    Sketcher.Constraint("Vertical", 6),
    Sketcher.Constraint("Horizontal", 7),
    Sketcher.Constraint("Symmetric", 3, 2, 6, 2, -1, 1),
    Sketcher.Constraint("Symmetric", 1, 2, 4, 2, -2),
    Sketcher.Constraint("PointOnObject", 2, 2, -1),
    Sketcher.Constraint("DistanceY", 0, 2, 0, 1, 1.5),
    Sketcher.Constraint("DistanceX", 1, 2, -1, 1, 7.0),
    Sketcher.Constraint("DistanceX", 1, 1, 1, 2, 1.25),
])
pad10 = body.newObject("PartDesign::Pad", "Pad009")
pad10.Profile = sketch11
pad10.Type = "TwoLengths"
pad10.Length = 0.75
pad10.Length2 = 1.5

sketch12 = body.newObject("Sketcher::SketchObject", "Sketch011")
sketch12.AttachmentSupport = (doc.getObject("XZ_Plane"), [""])
sketch12.MapMode = "FlatFace"
sketch12.AttachmentOffset = App.Placement(App.Vector(0, 0, -5), App.Rotation())
sketch12.addGeometry([
    Part.LineSegment(App.Vector(-8.105029, -21.712445, 0), App.Vector(-8.604856, -21.725626, 0)),
    Part.LineSegment(App.Vector(-8.604856, -21.725626, 0), App.Vector(-8.670758, -19.226495, 0)),
    Part.LineSegment(App.Vector(-8.670758, -19.226495, 0), App.Vector(-6.171627, -19.160592, 0)),
    Part.LineSegment(App.Vector(-6.171627, -19.160592, 0), App.Vector(-6.158447, -19.660418, 0)),
    Part.LineSegment(App.Vector(-6.158447, -19.660418, 0), App.Vector(-8.157752, -19.71314, 0)),
    Part.LineSegment(App.Vector(-8.157752, -19.71314, 0), App.Vector(-8.105029, -21.712445, 0)),
], False)
sketch12.addGeometry(Part.LineSegment(App.Vector(-6.066183, -23.159202, 0), App.Vector(-8.565314, -23.225104, 0)), True)
sketch12.addConstraint([
    Sketcher.Constraint("Coincident", 0, 2, 1, 1),
    Sketcher.Constraint("Coincident", 1, 2, 2, 1),
    Sketcher.Constraint("Coincident", 2, 2, 3, 1),
    Sketcher.Constraint("Coincident", 3, 2, 4, 1),
    Sketcher.Constraint("Coincident", 4, 2, 5, 1),
    Sketcher.Constraint("Coincident", 5, 2, 0, 1),
    Sketcher.Constraint("Perpendicular", 0, 1),
    Sketcher.Constraint("Perpendicular", 1, 2),
    Sketcher.Constraint("Perpendicular", 2, 3),
    Sketcher.Constraint("Perpendicular", 3, 4),
    Sketcher.Constraint("Perpendicular", 4, 5),
    Sketcher.Constraint("Perpendicular", 5, 6),
    Sketcher.Constraint("Equal", 1, 2),
    Sketcher.Constraint("Equal", 0, 3),
    Sketcher.Constraint("Equal", 2, 6),
    Sketcher.Constraint("Distance", 4, 2.0),
    Sketcher.Constraint("Distance", 0, 0.5),
    Sketcher.Constraint("DistanceY", 6, 1, -1, 1, 23.159202),
    Sketcher.Constraint("DistanceX", 1, 2, -1, 1, 8.670758),
    Sketcher.Constraint("DistanceY", 2, 2, -1, 1, 19.160592),
    Sketcher.Constraint("DistanceX", 4, 2, -1, 1, 8.157752),
    Sketcher.Constraint("DistanceX", 4, 2, 6, 1, 2.091569),
])
revolution = body.newObject("PartDesign::Revolution", "Revolution")
revolution.Profile = sketch12
revolution.ReferenceAxis = (sketch12, ["Axis0"])
revolution.Angle = 210

sketch13 = body.newObject("Sketcher::SketchObject", "Sketch012")
sketch13.AttachmentSupport = (doc.getObject("XZ_Plane"), [""])
sketch13.MapMode = "FlatFace"
sketch13.AttachmentOffset = App.Placement(App.Vector(0, 0, -5), App.Rotation())
sketch13.addGeometry([
    Part.LineSegment(App.Vector(-8.105029, -21.712445, 0), App.Vector(-8.604856, -21.725626, 0)),
    Part.LineSegment(App.Vector(-8.604856, -21.725626, 0), App.Vector(-8.670758, -19.226495, 0)),
    Part.LineSegment(App.Vector(-8.670758, -19.226495, 0), App.Vector(-6.171627, -19.160592, 0)),
    Part.LineSegment(App.Vector(-6.171627, -19.160592, 0), App.Vector(-6.158447, -19.660418, 0)),
    Part.LineSegment(App.Vector(-6.158447, -19.660418, 0), App.Vector(-8.157752, -19.71314, 0)),
    Part.LineSegment(App.Vector(-8.157752, -19.71314, 0), App.Vector(-8.105029, -21.712445, 0)),
], False)
sketch13.addGeometry(Part.LineSegment(App.Vector(-8.565314, -23.225104, 0), App.Vector(-6.066183, -23.159202, 0)), True)
sketch13.addConstraint([
    Sketcher.Constraint("Coincident", 0, 2, 1, 1),
    Sketcher.Constraint("Coincident", 1, 2, 2, 1),
    Sketcher.Constraint("Coincident", 2, 2, 3, 1),
    Sketcher.Constraint("Coincident", 3, 2, 4, 1),
    Sketcher.Constraint("Coincident", 4, 2, 5, 1),
    Sketcher.Constraint("Coincident", 5, 2, 0, 1),
    Sketcher.Constraint("Perpendicular", 0, 1),
    Sketcher.Constraint("Perpendicular", 1, 2),
    Sketcher.Constraint("Perpendicular", 2, 3),
    Sketcher.Constraint("Perpendicular", 3, 4),
    Sketcher.Constraint("Perpendicular", 4, 5),
    Sketcher.Constraint("Perpendicular", 5, 6),
    Sketcher.Constraint("Equal", 1, 2),
    Sketcher.Constraint("Equal", 0, 3),
    Sketcher.Constraint("Equal", 2, 6),
    Sketcher.Constraint("Distance", 4, 2.0),
    Sketcher.Constraint("Distance", 0, 0.5),
    Sketcher.Constraint("DistanceY", 6, 2, -1, 1, 23.159202),
    Sketcher.Constraint("DistanceX", 1, 2, -1, 1, 8.670758),
    Sketcher.Constraint("DistanceY", 2, 2, -1, 1, 19.160592),
    Sketcher.Constraint("DistanceX", 4, 2, -1, 1, 8.157752),
    Sketcher.Constraint("DistanceX", 0, 2, 6, 1, 0.039542),
])
revolution2 = body.newObject("PartDesign::Revolution", "Revolution001")
revolution2.Profile = sketch13
revolution2.ReferenceAxis = (sketch13, ["Axis0"])
revolution2.Angle = 30

doc.recompute()
